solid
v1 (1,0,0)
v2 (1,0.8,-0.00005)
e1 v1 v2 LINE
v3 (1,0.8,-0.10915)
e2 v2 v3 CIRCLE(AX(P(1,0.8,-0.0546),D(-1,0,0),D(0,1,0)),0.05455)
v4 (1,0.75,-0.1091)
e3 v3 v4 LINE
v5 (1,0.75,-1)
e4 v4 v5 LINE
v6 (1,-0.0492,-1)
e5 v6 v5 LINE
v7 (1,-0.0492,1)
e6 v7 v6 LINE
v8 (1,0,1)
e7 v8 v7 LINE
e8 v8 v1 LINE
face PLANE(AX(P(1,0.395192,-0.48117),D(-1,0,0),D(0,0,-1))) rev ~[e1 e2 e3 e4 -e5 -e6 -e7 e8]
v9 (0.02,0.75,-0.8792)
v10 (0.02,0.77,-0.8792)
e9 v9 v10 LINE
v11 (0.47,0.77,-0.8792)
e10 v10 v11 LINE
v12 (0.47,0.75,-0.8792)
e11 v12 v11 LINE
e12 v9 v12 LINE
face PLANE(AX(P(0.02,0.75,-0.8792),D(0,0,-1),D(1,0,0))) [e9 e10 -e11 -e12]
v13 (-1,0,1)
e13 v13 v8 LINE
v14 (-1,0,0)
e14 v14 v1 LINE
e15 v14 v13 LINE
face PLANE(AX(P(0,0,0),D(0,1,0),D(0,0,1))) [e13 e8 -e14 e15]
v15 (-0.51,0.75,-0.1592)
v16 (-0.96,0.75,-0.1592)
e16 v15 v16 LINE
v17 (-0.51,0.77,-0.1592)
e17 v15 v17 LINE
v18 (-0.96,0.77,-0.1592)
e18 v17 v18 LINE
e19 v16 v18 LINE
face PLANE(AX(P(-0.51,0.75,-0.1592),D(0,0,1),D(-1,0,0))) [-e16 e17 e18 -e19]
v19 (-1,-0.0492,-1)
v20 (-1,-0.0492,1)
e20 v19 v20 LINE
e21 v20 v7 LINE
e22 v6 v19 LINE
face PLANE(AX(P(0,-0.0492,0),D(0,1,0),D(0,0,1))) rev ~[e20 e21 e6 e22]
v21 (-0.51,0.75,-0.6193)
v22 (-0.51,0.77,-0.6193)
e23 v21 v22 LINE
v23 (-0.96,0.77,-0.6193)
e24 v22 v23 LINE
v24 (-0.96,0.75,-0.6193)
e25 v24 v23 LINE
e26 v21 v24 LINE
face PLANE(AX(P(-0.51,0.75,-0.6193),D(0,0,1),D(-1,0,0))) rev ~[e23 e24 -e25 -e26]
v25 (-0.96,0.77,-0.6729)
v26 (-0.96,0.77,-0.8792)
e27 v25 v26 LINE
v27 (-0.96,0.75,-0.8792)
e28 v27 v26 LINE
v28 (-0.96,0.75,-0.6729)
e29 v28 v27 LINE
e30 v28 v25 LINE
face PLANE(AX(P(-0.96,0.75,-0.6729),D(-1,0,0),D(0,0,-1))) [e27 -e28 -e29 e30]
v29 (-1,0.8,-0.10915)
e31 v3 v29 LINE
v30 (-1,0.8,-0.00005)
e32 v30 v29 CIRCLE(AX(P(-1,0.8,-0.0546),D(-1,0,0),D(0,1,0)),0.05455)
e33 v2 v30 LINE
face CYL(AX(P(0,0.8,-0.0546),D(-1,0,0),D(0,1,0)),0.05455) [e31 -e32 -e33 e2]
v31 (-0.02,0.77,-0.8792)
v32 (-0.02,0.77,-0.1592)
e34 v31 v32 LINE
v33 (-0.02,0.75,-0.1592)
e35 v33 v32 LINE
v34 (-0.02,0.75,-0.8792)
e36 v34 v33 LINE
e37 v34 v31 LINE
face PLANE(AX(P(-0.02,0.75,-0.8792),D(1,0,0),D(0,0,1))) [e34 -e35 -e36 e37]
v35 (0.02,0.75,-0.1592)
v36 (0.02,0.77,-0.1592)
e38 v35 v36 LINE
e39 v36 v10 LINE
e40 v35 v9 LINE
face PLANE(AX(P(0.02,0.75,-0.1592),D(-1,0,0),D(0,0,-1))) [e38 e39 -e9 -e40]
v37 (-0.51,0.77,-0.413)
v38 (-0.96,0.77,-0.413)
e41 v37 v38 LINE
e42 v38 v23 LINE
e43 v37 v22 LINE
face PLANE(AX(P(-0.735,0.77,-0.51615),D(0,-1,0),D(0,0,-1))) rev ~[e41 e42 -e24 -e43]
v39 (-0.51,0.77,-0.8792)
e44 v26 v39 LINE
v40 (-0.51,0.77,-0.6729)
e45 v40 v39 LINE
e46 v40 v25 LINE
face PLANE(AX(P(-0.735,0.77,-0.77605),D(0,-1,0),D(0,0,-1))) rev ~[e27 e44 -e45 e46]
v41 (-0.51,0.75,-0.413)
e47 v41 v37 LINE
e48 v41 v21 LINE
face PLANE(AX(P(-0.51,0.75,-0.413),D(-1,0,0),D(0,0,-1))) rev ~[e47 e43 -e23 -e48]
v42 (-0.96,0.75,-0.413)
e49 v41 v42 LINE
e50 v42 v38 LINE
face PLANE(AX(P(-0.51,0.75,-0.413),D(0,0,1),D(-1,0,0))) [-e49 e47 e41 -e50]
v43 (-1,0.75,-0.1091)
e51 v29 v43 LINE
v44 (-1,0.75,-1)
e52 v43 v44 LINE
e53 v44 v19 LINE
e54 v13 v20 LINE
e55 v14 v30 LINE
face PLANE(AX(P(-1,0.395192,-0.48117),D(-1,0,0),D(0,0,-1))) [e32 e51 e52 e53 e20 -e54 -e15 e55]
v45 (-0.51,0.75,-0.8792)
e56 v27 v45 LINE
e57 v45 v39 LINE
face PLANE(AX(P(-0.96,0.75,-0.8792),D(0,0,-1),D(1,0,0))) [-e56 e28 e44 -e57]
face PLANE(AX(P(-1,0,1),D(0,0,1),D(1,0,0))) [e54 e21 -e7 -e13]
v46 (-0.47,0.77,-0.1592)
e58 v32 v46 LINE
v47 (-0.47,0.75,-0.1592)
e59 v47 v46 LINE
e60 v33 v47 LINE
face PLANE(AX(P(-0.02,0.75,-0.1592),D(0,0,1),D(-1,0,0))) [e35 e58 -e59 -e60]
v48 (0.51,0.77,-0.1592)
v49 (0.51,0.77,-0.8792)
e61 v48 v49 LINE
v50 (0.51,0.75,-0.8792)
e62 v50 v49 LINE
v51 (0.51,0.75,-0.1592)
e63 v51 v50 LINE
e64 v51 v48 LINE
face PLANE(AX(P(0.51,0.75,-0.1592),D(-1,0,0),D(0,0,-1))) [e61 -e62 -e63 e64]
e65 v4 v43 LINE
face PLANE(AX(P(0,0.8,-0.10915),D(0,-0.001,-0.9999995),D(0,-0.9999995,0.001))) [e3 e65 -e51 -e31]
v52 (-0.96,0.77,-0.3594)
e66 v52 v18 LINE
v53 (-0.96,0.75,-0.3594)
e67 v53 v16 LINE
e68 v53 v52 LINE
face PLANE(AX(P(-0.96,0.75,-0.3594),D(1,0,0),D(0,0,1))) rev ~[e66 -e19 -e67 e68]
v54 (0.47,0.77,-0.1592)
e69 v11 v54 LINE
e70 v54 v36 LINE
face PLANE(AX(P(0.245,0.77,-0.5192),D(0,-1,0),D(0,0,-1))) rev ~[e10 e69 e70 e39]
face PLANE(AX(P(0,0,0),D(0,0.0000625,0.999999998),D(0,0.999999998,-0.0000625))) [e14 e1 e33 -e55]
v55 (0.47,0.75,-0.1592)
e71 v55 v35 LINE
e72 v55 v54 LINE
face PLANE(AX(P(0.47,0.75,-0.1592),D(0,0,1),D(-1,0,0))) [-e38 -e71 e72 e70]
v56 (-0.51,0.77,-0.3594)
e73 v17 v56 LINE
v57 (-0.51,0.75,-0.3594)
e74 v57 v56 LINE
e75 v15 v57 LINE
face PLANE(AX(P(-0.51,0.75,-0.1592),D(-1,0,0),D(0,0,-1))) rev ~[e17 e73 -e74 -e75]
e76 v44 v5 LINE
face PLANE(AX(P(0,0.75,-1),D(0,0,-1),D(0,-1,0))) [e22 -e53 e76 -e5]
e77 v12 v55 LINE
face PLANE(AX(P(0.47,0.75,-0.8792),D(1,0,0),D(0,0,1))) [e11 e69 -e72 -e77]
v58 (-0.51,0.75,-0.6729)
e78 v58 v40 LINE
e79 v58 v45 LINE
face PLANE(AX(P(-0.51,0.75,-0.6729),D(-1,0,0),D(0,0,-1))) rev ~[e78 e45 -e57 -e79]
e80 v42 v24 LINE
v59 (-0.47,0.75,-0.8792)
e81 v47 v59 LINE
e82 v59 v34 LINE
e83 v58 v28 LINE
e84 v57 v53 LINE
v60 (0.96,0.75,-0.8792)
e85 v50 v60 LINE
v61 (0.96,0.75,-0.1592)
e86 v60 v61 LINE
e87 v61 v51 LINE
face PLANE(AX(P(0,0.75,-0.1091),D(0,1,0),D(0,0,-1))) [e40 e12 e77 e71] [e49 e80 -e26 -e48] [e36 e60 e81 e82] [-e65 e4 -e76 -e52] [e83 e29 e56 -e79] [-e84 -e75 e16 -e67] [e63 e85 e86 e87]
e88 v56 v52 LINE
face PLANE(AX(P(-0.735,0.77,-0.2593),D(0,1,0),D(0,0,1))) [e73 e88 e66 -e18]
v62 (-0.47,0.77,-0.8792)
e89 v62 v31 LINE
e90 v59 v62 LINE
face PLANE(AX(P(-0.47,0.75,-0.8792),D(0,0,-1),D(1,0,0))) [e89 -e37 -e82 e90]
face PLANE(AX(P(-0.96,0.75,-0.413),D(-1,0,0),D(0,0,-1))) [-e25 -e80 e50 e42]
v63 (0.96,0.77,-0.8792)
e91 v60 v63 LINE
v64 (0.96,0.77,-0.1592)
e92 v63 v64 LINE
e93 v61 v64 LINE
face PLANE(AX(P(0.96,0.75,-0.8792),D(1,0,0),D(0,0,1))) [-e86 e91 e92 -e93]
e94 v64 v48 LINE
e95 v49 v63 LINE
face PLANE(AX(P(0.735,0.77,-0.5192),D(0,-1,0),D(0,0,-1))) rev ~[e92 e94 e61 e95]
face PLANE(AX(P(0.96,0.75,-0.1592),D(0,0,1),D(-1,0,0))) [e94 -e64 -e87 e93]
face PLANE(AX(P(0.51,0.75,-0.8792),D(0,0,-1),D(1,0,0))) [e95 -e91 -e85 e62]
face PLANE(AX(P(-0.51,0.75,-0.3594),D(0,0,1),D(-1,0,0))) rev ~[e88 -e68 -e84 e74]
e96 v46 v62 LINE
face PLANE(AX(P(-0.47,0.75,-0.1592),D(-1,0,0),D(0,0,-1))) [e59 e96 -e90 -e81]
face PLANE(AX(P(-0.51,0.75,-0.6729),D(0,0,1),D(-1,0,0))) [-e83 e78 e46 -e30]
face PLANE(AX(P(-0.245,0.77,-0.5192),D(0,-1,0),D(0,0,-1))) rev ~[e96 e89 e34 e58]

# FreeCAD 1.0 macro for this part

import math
import FreeCAD as App
import Part
import Sketcher
from FreeCAD import Vector


def add_polygon(sketch, points):
    """Adds a closed chain of lines whose ends are joined by coincident constraints."""
    first, n = sketch.GeometryCount, len(points)
    for a, b in zip(points, points[1:] + points[:1]):
        sketch.addGeometry(Part.LineSegment(App.Vector(*a, 0), App.Vector(*b, 0)), False)
    for i in range(n):
        sketch.addConstraint(Sketcher.Constraint("Coincident", first + i, 2, first + (i + 1) % n, 1))

doc = App.newDocument("Part")
body = doc.addObject("PartDesign::Body", "Body")

# Sketch on YZ plane
sketch1 = body.newObject("Sketcher::SketchObject", "Sketch")
sketch1.AttachmentSupport = (doc.getObject("YZ_Plane"), [""])
sketch1.MapMode = "FlatFace"
sketch1.addGeometry([
    Part.LineSegment(Vector(0.8, 0, 0), Vector(0, 0, 0)),  # 0
    Part.LineSegment(Vector(0, 0, 0), Vector(0, -1, 0)),  # 1
    Part.LineSegment(Vector(0, -1, 0), Vector(0.75, -1, 0)),  # 2
    Part.LineSegment(Vector(0.75, -1, 0), Vector(0.75, -0.11, 0)),  # 3
    Part.LineSegment(Vector(0.75, -0.11, 0), Vector(0.8, -0.11, 0)),  # 4
    Part.ArcOfCircle(Part.Circle(Vector(0.8, -0.05, 0), Vector(0, 0, 1), 0.05), math.radians(-90), math.radians(90)),  # 5
], False)
sketch1.addConstraint([
    Sketcher.Constraint("Coincident", 0, 2, 1, 1),
    Sketcher.Constraint("Coincident", 1, 2, 2, 1),
    Sketcher.Constraint("Coincident", 2, 2, 3, 1),
    Sketcher.Constraint("Coincident", 3, 2, 4, 1),
    Sketcher.Constraint("Tangent", 4, 2, 5, 1),
    Sketcher.Constraint("Tangent", 5, 2, 0, 1),
    Sketcher.Constraint("Horizontal", 0),
    Sketcher.Constraint("Vertical", 1),
    Sketcher.Constraint("Horizontal", 2),
    Sketcher.Constraint("Vertical", 3),
    Sketcher.Constraint("Horizontal", 4),
    Sketcher.Constraint("Coincident", 0, 2, -1, 1),
    Sketcher.Constraint("DistanceY", 1, 2, 1, 1, 1.0),
    Sketcher.Constraint("DistanceX", 0, 2, 0, 1, 0.8),
    Sketcher.Constraint("DistanceX", 2, 1, 2, 2, 0.75),
    Sketcher.Constraint("Radius", 5, 0.0546),
])
pad1 = body.newObject("PartDesign::Pad", "Pad")
pad1.Profile = sketch1
pad1.Length = 2
pad1.Midplane = True

# Sketch on XZ plane
sketch2 = body.newObject("Sketcher::SketchObject", "Sketch001")
sketch2.AttachmentSupport = (doc.getObject("XZ_Plane"), [""])
sketch2.MapMode = "FlatFace"
sketch2.AttachmentOffset = App.Placement(Vector(0, 0, -0.75), App.Rotation())
add_polygon(sketch2, [(-0.51, -0.16), (-0.51, -0.36), (-0.96, -0.36), (-0.96, -0.16)])  # lines 0-3
add_polygon(sketch2, [(-0.96, -0.41), (-0.51, -0.41), (-0.51, -0.62), (-0.96, -0.62)])  # lines 4-7
add_polygon(sketch2, [(-0.96, -0.88), (-0.96, -0.67), (-0.51, -0.67), (-0.51, -0.88)])  # lines 8-11
add_polygon(sketch2, [(-0.47, -0.88), (-0.47, -0.16), (-0.02, -0.16), (-0.02, -0.88)])  # lines 12-15
add_polygon(sketch2, [(0.02, -0.88), (0.02, -0.16), (0.47, -0.16), (0.47, -0.88)])  # lines 16-19
add_polygon(sketch2, [(0.51, -0.88), (0.51, -0.16), (0.96, -0.16), (0.96, -0.88)])  # lines 20-23
sketch2.addConstraint([
    Sketcher.Constraint("Vertical", 0),
    Sketcher.Constraint("Horizontal", 1),
    Sketcher.Constraint("Vertical", 2),
    Sketcher.Constraint("Horizontal", 3),
    Sketcher.Constraint("Horizontal", 4),
    Sketcher.Constraint("Vertical", 5),
    Sketcher.Constraint("Horizontal", 6),
    Sketcher.Constraint("Vertical", 7),
    Sketcher.Constraint("Vertical", 8),
    Sketcher.Constraint("Horizontal", 9),
    Sketcher.Constraint("Vertical", 10),
    Sketcher.Constraint("Horizontal", 11),
    Sketcher.Constraint("Vertical", 12),
    Sketcher.Constraint("Horizontal", 13),
    Sketcher.Constraint("Vertical", 14),
    Sketcher.Constraint("Horizontal", 15),
    Sketcher.Constraint("Vertical", 16),
    Sketcher.Constraint("Horizontal", 17),
    Sketcher.Constraint("Vertical", 18),
    Sketcher.Constraint("Horizontal", 19),
    Sketcher.Constraint("Vertical", 20),
    Sketcher.Constraint("Horizontal", 21),
    Sketcher.Constraint("Vertical", 22),
    Sketcher.Constraint("Horizontal", 23),
    Sketcher.Constraint("Symmetric", 13, 2, 16, 2, -2),
    Sketcher.Constraint("Symmetric", 15, 2, 18, 2, -2),
    Sketcher.Constraint("Symmetric", 3, 2, 20, 2, -2),
    Sketcher.Constraint("Symmetric", 11, 2, 22, 2, -2),
    Sketcher.Constraint("Horizontal", 3, 2, 12, 2),
    Sketcher.Constraint("Horizontal", 11, 2, 14, 2),
    Sketcher.Constraint("Vertical", 3, 2, 4, 2),
    Sketcher.Constraint("Vertical", 2, 2, 6, 2),
    Sketcher.Constraint("Vertical", 7, 2, 8, 2),
    Sketcher.Constraint("Vertical", 5, 2, 9, 2),
    Sketcher.Constraint("Equal", 11, 13),
    Sketcher.Constraint("Equal", 7, 8),
    Sketcher.Constraint("DistanceX", 1, 2, 1, 1, 0.45),
    Sketcher.Constraint("DistanceY", 12, 1, 12, 2, 0.72),
    Sketcher.Constraint("DistanceX", 0, 2, -1, 1, 0.51),
    Sketcher.Constraint("DistanceX", 12, 2, -1, 1, 0.47),
    Sketcher.Constraint("DistanceY", 5, 2, 0, 2, 0.26),
    Sketcher.Constraint("DistanceY", 5, 2, 3, 2, 0.46),
    Sketcher.Constraint("DistanceY", 5, 2, 5, 1, 0.2063),
    Sketcher.Constraint("DistanceY", 4, 2, -1, 1, 0.413),
])
pad2 = body.newObject("PartDesign::Pad", "Pad001")
pad2.Profile = sketch2
pad2.Length = 0.02
pad2.Reversed = True

# Sketch on XZ plane
sketch3 = body.newObject("Sketcher::SketchObject", "Sketch002")
sketch3.AttachmentSupport = (doc.getObject("XZ_Plane"), [""])
sketch3.MapMode = "FlatFace"
add_polygon(sketch3, [(-1, 1), (1, 1), (1, -1), (-1, -1)])  # lines 0-3
sketch3.addConstraint([
    Sketcher.Constraint("Horizontal", 0),
    Sketcher.Constraint("Vertical", 1),
    Sketcher.Constraint("Horizontal", 2),
    Sketcher.Constraint("Vertical", 3),
    Sketcher.Constraint("Symmetric", 0, 2, 2, 2, -1, 1),
    Sketcher.Constraint("Equal", 2, 1),
    Sketcher.Constraint("DistanceX", 0, 1, 0, 2, 2.0),
])
pad3 = body.newObject("PartDesign::Pad", "Pad002")
pad3.Profile = sketch3
pad3.Length = 0.0492

doc.recompute()
